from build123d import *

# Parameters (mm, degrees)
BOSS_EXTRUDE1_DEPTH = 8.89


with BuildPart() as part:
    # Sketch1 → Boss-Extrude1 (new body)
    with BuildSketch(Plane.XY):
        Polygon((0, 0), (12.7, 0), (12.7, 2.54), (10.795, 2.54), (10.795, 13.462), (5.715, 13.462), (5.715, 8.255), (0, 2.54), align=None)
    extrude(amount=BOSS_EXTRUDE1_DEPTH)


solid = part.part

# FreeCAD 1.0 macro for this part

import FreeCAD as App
import Part
import Sketcher
from FreeCAD import Vector
Q = App.Units.Quantity

doc = App.newDocument("Part")
body = doc.addObject("PartDesign::Body", "Body")

sketch1 = body.newObject("Sketcher::SketchObject", "Sketch")
sketch1.AttachmentSupport = (doc.getObject("XY_Plane"), [""])
sketch1.MapMode = "FlatFace"
sketch1.addGeometry([
    Part.LineSegment(Vector(0, 0, 0), Vector(12.7, 0, 0)),
    Part.LineSegment(Vector(12.7, 0, 0), Vector(12.7, 2.5, 0)),
    Part.LineSegment(Vector(12.7, 2.5, 0), Vector(10.8, 2.5, 0)),
    Part.LineSegment(Vector(10.8, 2.5, 0), Vector(10.8, 13.5, 0)),
    Part.LineSegment(Vector(10.8, 13.5, 0), Vector(5.7, 13.5, 0)),
    Part.LineSegment(Vector(5.7, 13.5, 0), Vector(5.7, 8.3, 0)),
    Part.LineSegment(Vector(5.7, 8.3, 0), Vector(0, 2.5, 0)),
    Part.LineSegment(Vector(0, 2.5, 0), Vector(0, 0, 0)),
], False)
sketch1.addConstraint([
    Sketcher.Constraint("Coincident", 0, 2, 1, 1),
    Sketcher.Constraint("Coincident", 1, 2, 2, 1),
    Sketcher.Constraint("Coincident", 2, 2, 3, 1),
    Sketcher.Constraint("Coincident", 3, 2, 4, 1),
    Sketcher.Constraint("Coincident", 4, 2, 5, 1),
    Sketcher.Constraint("Coincident", 5, 2, 6, 1),
    Sketcher.Constraint("Coincident", 6, 2, 7, 1),
    Sketcher.Constraint("Coincident", 7, 2, 0, 1),
    Sketcher.Constraint("Horizontal", 0),
    Sketcher.Constraint("Vertical", 1),
    Sketcher.Constraint("Horizontal", 2),
    Sketcher.Constraint("Vertical", 3),
    Sketcher.Constraint("Horizontal", 4),
    Sketcher.Constraint("Vertical", 5),
    Sketcher.Constraint("Vertical", 7),
    Sketcher.Constraint("Coincident", 7, 2, -1, 1),
    Sketcher.Constraint("Horizontal", 2, 2, 6, 2),
    Sketcher.Constraint("DistanceX", 0, 1, 0, 2, Q("0.5 in")),
    Sketcher.Constraint("DistanceX", 4, 2, 4, 1, Q("0.2 in")),
    Sketcher.Constraint("DistanceY", 1, 1, 1, 2, Q("0.1 in")),
    Sketcher.Constraint("Angle", 6, Q("-135 deg")),
    Sketcher.Constraint("DistanceY", 3, 1, 3, 2, Q("0.43 in")),
    Sketcher.Constraint("DistanceX", 2, 2, 2, 1, Q("0.075 in")),
])
pad1 = body.newObject("PartDesign::Pad", "Pad")
pad1.Profile = sketch1
pad1.Length = Q("0.35 in")

doc.recompute()
